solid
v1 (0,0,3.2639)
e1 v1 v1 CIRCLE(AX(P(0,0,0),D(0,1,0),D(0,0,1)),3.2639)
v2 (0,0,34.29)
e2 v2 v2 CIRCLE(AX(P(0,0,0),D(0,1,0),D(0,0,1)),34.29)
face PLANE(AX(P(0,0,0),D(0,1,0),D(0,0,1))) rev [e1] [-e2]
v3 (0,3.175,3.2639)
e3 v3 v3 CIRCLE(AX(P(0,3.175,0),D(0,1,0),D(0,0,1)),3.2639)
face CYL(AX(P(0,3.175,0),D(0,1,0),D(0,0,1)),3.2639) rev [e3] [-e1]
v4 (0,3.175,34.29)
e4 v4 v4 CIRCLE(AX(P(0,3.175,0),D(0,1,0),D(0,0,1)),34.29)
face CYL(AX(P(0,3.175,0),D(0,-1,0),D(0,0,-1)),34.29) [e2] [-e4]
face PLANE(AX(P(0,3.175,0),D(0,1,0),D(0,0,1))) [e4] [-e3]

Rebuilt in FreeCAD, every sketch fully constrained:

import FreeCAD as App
import Part
import Sketcher

V = App.Vector
Q = App.Units.Quantity

doc = App.newDocument("Part")
body = doc.addObject("PartDesign::Body", "Body")

sketch1 = body.newObject("Sketcher::SketchObject", "Sketch")
sketch1.AttachmentSupport = (doc.getObject("XZ_Plane"), [""])
sketch1.MapMode = "FlatFace"
sketch1.addGeometry(Part.Circle(V(0, 0, 0), V(0, 0, 1), 34), False)
sketch1.addConstraint([
    Sketcher.Constraint("Coincident", 0, 3, -1, 1),
    Sketcher.Constraint("Diameter", 0, Q("2.7 in")),
])
pad1 = body.newObject("PartDesign::Pad", "Pad")
pad1.Profile = sketch1
pad1.Length = Q("0.125 in")
pad1.Reversed = True

sketch2 = body.newObject("Sketcher::SketchObject", "Sketch001")
sketch2.AttachmentSupport = (doc.getObject("XZ_Plane"), [""])
sketch2.MapMode = "FlatFace"
sketch2.AttachmentOffset = App.Placement(V(0, 0, -0.125 * 25.4), App.Rotation())
sketch2.addGeometry(Part.Circle(V(0, 0, 0), V(0, 0, 1), 3.3), False)
sketch2.addConstraint([
    Sketcher.Constraint("Coincident", 0, 3, -1, 1),
    Sketcher.Constraint("Diameter", 0, Q("0.257 in")),
])
doc.recompute()
hole = body.newObject("PartDesign::Hole", "Hole")
hole.Profile = sketch2
hole.ThreadType = "None"
hole.Diameter = Q("0.257 in")
hole.DepthType = "ThroughAll"
hole.Reversed = True

doc.recompute()
